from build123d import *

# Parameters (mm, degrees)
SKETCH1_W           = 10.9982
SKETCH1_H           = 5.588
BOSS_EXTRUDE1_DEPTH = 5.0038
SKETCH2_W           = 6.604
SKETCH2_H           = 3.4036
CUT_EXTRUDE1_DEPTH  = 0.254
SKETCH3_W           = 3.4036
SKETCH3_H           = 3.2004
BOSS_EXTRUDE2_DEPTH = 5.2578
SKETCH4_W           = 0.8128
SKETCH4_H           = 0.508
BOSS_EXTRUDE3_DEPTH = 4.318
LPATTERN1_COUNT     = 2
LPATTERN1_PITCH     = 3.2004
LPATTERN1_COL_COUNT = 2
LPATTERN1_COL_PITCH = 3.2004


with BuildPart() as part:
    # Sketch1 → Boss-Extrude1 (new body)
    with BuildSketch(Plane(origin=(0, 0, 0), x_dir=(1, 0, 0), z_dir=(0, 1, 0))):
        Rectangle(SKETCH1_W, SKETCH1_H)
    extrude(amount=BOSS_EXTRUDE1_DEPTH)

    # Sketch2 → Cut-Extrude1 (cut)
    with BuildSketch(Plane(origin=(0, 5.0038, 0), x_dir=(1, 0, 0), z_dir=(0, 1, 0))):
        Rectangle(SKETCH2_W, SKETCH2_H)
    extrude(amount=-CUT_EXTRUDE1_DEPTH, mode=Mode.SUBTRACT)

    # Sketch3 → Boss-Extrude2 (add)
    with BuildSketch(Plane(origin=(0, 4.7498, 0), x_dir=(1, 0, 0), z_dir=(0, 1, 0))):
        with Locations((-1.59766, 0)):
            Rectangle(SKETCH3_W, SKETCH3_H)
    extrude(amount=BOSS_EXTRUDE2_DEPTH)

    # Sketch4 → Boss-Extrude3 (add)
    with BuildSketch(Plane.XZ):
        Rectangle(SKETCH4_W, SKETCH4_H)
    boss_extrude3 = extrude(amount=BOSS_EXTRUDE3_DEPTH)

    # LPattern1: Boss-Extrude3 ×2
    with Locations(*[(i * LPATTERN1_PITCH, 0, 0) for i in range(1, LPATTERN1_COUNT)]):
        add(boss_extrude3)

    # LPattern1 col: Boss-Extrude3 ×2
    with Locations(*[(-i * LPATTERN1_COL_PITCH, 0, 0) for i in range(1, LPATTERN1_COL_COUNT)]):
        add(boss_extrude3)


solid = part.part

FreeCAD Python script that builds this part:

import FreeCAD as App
import Part
import Sketcher
Q = App.Units.Quantity


def add_polygon(sketch, points):
    """Adds a closed chain of lines whose ends are joined by coincident constraints."""
    first, n = sketch.GeometryCount, len(points)
    for a, b in zip(points, points[1:] + points[:1]):
        sketch.addGeometry(Part.LineSegment(App.Vector(*a, 0), App.Vector(*b, 0)), False)
    for i in range(n):
        sketch.addConstraint(Sketcher.Constraint("Coincident", first + i, 2, first + (i + 1) % n, 1))

doc = App.newDocument("Part")
body = doc.addObject("PartDesign::Body", "Body")

# Sketch on XZ plane
sketch1 = body.newObject("Sketcher::SketchObject", "Sketch")
sketch1.AttachmentSupport = (doc.getObject("XZ_Plane"), [""])
sketch1.MapMode = "FlatFace"
add_polygon(sketch1, [(-5, -3), (-5, 3), (5, 3), (5, -3)])  # lines 0-3
sketch1.addConstraint([
    Sketcher.Constraint("Vertical", 0),
    Sketcher.Constraint("Horizontal", 1),
    Sketcher.Constraint("Vertical", 2),
    Sketcher.Constraint("Horizontal", 3),
    Sketcher.Constraint("Symmetric", 0, 2, 2, 2, -1, 1),
    Sketcher.Constraint("DistanceY", 0, 1, 0, 2, Q("0.22 in")),
    Sketcher.Constraint("DistanceX", 1, 1, 1, 2, Q("0.433 in")),
])
pad1 = body.newObject("PartDesign::Pad", "Pad")
pad1.Profile = sketch1
pad1.Length = Q("0.197 in")
pad1.Reversed = True

# Sketch on XZ plane
sketch2 = body.newObject("Sketcher::SketchObject", "Sketch001")
sketch2.AttachmentSupport = (doc.getObject("XZ_Plane"), [""])
sketch2.MapMode = "FlatFace"
sketch2.AttachmentOffset = App.Placement(App.Vector(0, 0, -0.197 * 25.4), App.Rotation())
add_polygon(sketch2, [(-3.3, -1.7), (-3.3, 1.7), (3.3, 1.7), (3.3, -1.7)])  # lines 0-3
sketch2.addConstraint([
    Sketcher.Constraint("Vertical", 0),
    Sketcher.Constraint("Horizontal", 1),
    Sketcher.Constraint("Vertical", 2),
    Sketcher.Constraint("Horizontal", 3),
    Sketcher.Constraint("Symmetric", 0, 2, 2, 2, -1, 1),
    Sketcher.Constraint("DistanceX", 1, 1, 1, 2, Q("0.26 in")),
    Sketcher.Constraint("DistanceY", 0, 1, 0, 2, Q("0.134 in")),
])
pocket1 = body.newObject("PartDesign::Pocket", "Pocket")
pocket1.Profile = sketch2
pocket1.Length = Q("0.01 in")
pocket1.Reversed = True

# Sketch on XZ plane
sketch3 = body.newObject("Sketcher::SketchObject", "Sketch002")
sketch3.AttachmentSupport = (doc.getObject("XZ_Plane"), [""])
sketch3.MapMode = "FlatFace"
sketch3.AttachmentOffset = App.Placement(App.Vector(0, 0, -0.187 * 25.4), App.Rotation())
add_polygon(sketch3, [(-3.3, -1.6), (-3.3, 1.6), (0.1, 1.6), (0.1, -1.6)])  # lines 0-3
sketch3.addConstraint([
    Sketcher.Constraint("Vertical", 0),
    Sketcher.Constraint("Horizontal", 1),
    Sketcher.Constraint("Vertical", 2),
    Sketcher.Constraint("Horizontal", 3),
    Sketcher.Constraint("DistanceX", 1, 1, 1, 2, Q("0.134 in")),
    Sketcher.Constraint("DistanceY", 0, 1, 0, 2, Q("0.126 in")),
    Sketcher.Constraint("DistanceY", -1, 1, 0, 2, Q("0.063 in")),
    Sketcher.Constraint("DistanceX", 0, 2, -1, 1, Q("0.1299 in")),
])
pad2 = body.newObject("PartDesign::Pad", "Pad001")
pad2.Profile = sketch3
pad2.Length = Q("0.207 in")
pad2.Reversed = True

# Sketch on XZ plane
sketch4 = body.newObject("Sketcher::SketchObject", "Sketch003")
sketch4.AttachmentSupport = (doc.getObject("XZ_Plane"), [""])
sketch4.MapMode = "FlatFace"
add_polygon(sketch4, [(-0.4, 0.3), (-0.4, -0.3), (0.4, -0.3), (0.4, 0.3)])  # lines 0-3
sketch4.addConstraint([
    Sketcher.Constraint("Vertical", 0),
    Sketcher.Constraint("Horizontal", 1),
    Sketcher.Constraint("Vertical", 2),
    Sketcher.Constraint("Horizontal", 3),
    Sketcher.Constraint("Symmetric", 0, 2, 2, 2, -1, 1),
    Sketcher.Constraint("DistanceY", 0, 2, 0, 1, Q("0.02 in")),
    Sketcher.Constraint("DistanceX", 1, 1, 1, 2, Q("0.032 in")),
])
pad3 = body.newObject("PartDesign::Pad", "Pad002")
pad3.Profile = sketch4
pad3.Length = Q("0.17 in")
doc.recompute()

linearpattern = body.newObject("PartDesign::LinearPattern", "LinearPattern")
linearpattern.Originals = [pad3]
linearpattern.Direction = (doc.getObject("X_Axis"), [""])
linearpattern.Mode = "offset"
linearpattern.Offset = Q("0.126 in")
linearpattern.Occurrences = 2
body.Tip = linearpattern
doc.recompute()

linearpattern2 = body.newObject("PartDesign::LinearPattern", "LinearPattern001")
linearpattern2.Originals = [pad3]
linearpattern2.Direction = (doc.getObject("X_Axis"), [""])
linearpattern2.Mode = "offset"
linearpattern2.Offset = Q("0.126 in")
linearpattern2.Occurrences = 2
linearpattern2.Reversed = True
body.Tip = linearpattern2

doc.recompute()
